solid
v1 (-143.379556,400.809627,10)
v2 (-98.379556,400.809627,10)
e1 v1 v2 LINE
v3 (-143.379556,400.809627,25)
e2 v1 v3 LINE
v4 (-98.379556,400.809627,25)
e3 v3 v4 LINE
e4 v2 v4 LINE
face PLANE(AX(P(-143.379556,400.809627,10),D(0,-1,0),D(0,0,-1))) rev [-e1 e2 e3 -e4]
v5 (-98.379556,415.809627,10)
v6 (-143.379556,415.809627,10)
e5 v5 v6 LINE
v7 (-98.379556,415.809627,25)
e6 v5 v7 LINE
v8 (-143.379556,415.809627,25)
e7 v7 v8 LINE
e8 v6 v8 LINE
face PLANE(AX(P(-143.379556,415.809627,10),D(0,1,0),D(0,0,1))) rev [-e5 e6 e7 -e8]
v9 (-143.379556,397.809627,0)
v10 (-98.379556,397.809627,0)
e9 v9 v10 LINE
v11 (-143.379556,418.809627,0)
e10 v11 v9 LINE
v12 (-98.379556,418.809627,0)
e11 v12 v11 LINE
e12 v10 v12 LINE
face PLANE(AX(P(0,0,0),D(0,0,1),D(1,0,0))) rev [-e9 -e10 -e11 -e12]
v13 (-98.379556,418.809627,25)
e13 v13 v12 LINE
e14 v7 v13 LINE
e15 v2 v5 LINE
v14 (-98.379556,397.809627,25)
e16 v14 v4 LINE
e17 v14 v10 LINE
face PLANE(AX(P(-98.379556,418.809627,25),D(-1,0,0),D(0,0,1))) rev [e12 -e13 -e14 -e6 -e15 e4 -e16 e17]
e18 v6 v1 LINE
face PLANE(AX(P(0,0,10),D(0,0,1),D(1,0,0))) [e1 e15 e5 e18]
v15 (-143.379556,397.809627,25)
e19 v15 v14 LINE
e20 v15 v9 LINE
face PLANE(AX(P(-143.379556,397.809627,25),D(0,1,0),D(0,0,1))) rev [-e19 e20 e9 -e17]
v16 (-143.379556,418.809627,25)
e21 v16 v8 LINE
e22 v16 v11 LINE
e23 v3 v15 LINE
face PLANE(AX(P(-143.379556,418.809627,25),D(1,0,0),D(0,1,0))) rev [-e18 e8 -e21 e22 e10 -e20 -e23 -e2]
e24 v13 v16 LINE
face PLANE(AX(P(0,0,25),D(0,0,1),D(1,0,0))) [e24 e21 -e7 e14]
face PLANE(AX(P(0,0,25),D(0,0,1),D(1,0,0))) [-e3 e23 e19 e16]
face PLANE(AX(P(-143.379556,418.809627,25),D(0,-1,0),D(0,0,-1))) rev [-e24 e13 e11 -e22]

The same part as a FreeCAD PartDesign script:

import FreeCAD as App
import Part
import Sketcher

V = App.Vector
Q = App.Units.Quantity


def add_polygon(sketch, points):
    """Adds a closed chain of lines whose ends are joined by coincident constraints."""
    first, n = sketch.GeometryCount, len(points)
    for a, b in zip(points, points[1:] + points[:1]):
        sketch.addGeometry(Part.LineSegment(App.Vector(*a, 0), App.Vector(*b, 0)), False)
    for i in range(n):
        sketch.addConstraint(Sketcher.Constraint("Coincident", first + i, 2, first + (i + 1) % n, 1))

doc = App.newDocument("Part")
params = doc.addObject("Spreadsheet::Sheet", "Params")
for row, (alias, value) in enumerate([
    ("sketch1_width", "45 mm"),
    ("sketch1_height", "21 mm"),
    ("pad1_length", "25 mm"),
    ("sketch2_width", "45 mm"),
    ("sketch2_height", "15 mm"),
    ("pocket1_length", "15 mm"),
], start=1):
    params.set(f"A{row}", alias)
    params.set(f"B{row}", "=" + value)
    params.setAlias(f"B{row}", alias)

body = doc.addObject("PartDesign::Body", "Body")

# Sketch on XY plane
sketch1 = doc.addObject("Sketcher::SketchObject", "Sketch")
body.addObject(sketch1)
sketch1.AttachmentSupport = (doc.XY_Plane, [""])
sketch1.MapMode = "FlatFace"
add_polygon(sketch1, [(-143.379556, 418.809627), (-143.379556, 397.809627), (-98.379556, 397.809627), (-98.379556, 418.809627)])  # lines 0-3
sketch1.addConstraint(Sketcher.Constraint("Vertical", 0))
sketch1.addConstraint(Sketcher.Constraint("Horizontal", 1))
sketch1.addConstraint(Sketcher.Constraint("Vertical", 2))
sketch1.addConstraint(Sketcher.Constraint("Horizontal", 3))
sketch1.addConstraint(Sketcher.Constraint("DistanceX", 1, 1, 1, 2, Q("45 mm")))
sketch1.addConstraint(Sketcher.Constraint("DistanceY", 0, 2, 0, 1, Q("21 mm")))
sketch1.addConstraint(Sketcher.Constraint("DistanceX", 0, 2, -1, 1, Q("143.379556 mm")))
sketch1.addConstraint(Sketcher.Constraint("DistanceY", -1, 1, 0, 2, Q("397.809627 mm")))
sketch1.setExpression("Constraints[8]", "Params.sketch1_width")
sketch1.setExpression("Constraints[9]", "Params.sketch1_height")
pad1 = doc.addObject("PartDesign::Pad", "Pad")
body.addObject(pad1)
pad1.Profile = sketch1
pad1.setExpression("Length", "Params.pad1_length")

# Sketch on XY plane
sketch2 = doc.addObject("Sketcher::SketchObject", "Sketch001")
body.addObject(sketch2)
sketch2.AttachmentSupport = (doc.XY_Plane, [""])
sketch2.MapMode = "FlatFace"
sketch2.AttachmentOffset = App.Placement(V(0, 0, 25), App.Rotation())
add_polygon(sketch2, [(-143.379556, 415.809627), (-143.379556, 400.809627), (-98.379556, 400.809627), (-98.379556, 415.809627)])  # lines 0-3
sketch2.addConstraint(Sketcher.Constraint("Vertical", 0))
sketch2.addConstraint(Sketcher.Constraint("Horizontal", 1))
sketch2.addConstraint(Sketcher.Constraint("Vertical", 2))
sketch2.addConstraint(Sketcher.Constraint("Horizontal", 3))
sketch2.addConstraint(Sketcher.Constraint("DistanceX", 1, 1, 1, 2, Q("45 mm")))
sketch2.addConstraint(Sketcher.Constraint("DistanceY", 0, 2, 0, 1, Q("15 mm")))
sketch2.addConstraint(Sketcher.Constraint("DistanceX", 0, 2, -1, 1, Q("143.379556 mm")))
sketch2.addConstraint(Sketcher.Constraint("DistanceY", -1, 1, 0, 2, Q("400.809627 mm")))
sketch2.setExpression("Constraints[8]", "Params.sketch2_width")
sketch2.setExpression("Constraints[9]", "Params.sketch2_height")
pocket1 = doc.addObject("PartDesign::Pocket", "Pocket")
body.addObject(pocket1)
pocket1.Profile = sketch2
pocket1.setExpression("Length", "Params.pocket1_length")

doc.recompute()
